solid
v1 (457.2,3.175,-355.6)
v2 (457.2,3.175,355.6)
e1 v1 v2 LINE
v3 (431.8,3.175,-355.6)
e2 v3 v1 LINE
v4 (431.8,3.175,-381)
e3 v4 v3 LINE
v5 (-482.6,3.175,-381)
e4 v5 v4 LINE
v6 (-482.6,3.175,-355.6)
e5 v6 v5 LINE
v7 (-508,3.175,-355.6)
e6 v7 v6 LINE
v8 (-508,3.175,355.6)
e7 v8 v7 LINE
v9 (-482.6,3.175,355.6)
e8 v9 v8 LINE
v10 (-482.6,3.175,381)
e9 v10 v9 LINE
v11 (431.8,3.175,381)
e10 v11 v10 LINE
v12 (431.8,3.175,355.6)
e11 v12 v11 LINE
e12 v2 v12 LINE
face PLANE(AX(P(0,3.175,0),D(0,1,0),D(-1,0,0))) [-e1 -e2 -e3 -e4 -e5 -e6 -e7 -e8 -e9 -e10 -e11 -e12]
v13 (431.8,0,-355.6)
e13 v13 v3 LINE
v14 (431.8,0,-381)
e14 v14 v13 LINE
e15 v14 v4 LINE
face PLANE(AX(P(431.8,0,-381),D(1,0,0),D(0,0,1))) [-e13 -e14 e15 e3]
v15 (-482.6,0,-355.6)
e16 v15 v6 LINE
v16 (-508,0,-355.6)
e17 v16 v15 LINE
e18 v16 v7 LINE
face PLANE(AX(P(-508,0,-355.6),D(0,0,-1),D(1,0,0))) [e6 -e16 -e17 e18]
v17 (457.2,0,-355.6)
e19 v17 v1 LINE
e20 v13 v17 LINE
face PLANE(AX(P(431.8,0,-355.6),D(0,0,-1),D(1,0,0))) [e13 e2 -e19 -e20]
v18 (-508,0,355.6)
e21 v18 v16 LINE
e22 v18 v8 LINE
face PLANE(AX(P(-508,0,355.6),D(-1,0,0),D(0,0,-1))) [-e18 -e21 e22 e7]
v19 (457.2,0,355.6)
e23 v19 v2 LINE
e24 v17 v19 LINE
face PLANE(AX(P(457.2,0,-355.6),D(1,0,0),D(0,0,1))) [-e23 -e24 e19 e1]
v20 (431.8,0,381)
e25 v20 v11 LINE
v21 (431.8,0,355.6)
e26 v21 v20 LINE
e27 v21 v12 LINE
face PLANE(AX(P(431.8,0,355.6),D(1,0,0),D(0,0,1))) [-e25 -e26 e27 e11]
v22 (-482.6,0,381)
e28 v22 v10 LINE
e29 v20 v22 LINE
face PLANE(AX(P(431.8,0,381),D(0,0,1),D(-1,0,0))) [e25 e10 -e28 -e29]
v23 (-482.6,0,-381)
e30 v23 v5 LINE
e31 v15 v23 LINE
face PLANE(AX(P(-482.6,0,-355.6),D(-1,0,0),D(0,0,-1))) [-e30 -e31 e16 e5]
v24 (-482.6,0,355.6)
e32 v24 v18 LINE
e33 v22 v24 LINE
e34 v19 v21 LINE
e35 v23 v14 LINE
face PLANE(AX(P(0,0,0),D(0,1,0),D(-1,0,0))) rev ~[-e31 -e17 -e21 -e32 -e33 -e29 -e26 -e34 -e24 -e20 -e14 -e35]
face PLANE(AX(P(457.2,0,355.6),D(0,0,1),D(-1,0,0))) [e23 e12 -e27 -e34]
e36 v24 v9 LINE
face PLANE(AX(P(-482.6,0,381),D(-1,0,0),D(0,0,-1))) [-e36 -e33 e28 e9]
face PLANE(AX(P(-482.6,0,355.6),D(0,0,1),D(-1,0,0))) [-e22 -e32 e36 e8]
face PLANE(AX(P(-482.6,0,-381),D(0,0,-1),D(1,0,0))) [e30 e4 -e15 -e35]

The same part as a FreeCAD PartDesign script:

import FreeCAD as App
import Part
import Sketcher
Q = App.Units.Quantity

doc = App.newDocument("Part")
body = doc.addObject("PartDesign::Body", "Body")

# Sketch on XZ plane
sketch1 = body.newObject("Sketcher::SketchObject", "Sketch")
sketch1.AttachmentSupport = (doc.getObject("XZ_Plane"), [""])
sketch1.MapMode = "FlatFace"
sketch1.addGeometry([
    Part.LineSegment(App.Vector(-508, -356, 0), App.Vector(-508, 356, 0)),  # 0
    Part.LineSegment(App.Vector(-508, 356, 0), App.Vector(-483, 356, 0)),  # 1
    Part.LineSegment(App.Vector(-483, 356, 0), App.Vector(-483, 381, 0)),  # 2
    Part.LineSegment(App.Vector(-483, 381, 0), App.Vector(432, 381, 0)),  # 3
    Part.LineSegment(App.Vector(432, 381, 0), App.Vector(432, 356, 0)),  # 4
    Part.LineSegment(App.Vector(432, 356, 0), App.Vector(457, 356, 0)),  # 5
    Part.LineSegment(App.Vector(457, 356, 0), App.Vector(457, -356, 0)),  # 6
    Part.LineSegment(App.Vector(457, -356, 0), App.Vector(432, -356, 0)),  # 7
    Part.LineSegment(App.Vector(432, -356, 0), App.Vector(432, -381, 0)),  # 8
    Part.LineSegment(App.Vector(432, -381, 0), App.Vector(-483, -381, 0)),  # 9
    Part.LineSegment(App.Vector(-483, -381, 0), App.Vector(-483, -356, 0)),  # 10
    Part.LineSegment(App.Vector(-483, -356, 0), App.Vector(-508, -356, 0)),  # 11
], False)
sketch1.addConstraint([
    Sketcher.Constraint("Coincident", 0, 2, 1, 1),
    Sketcher.Constraint("Coincident", 1, 2, 2, 1),
    Sketcher.Constraint("Coincident", 2, 2, 3, 1),
    Sketcher.Constraint("Coincident", 3, 2, 4, 1),
    Sketcher.Constraint("Coincident", 4, 2, 5, 1),
    Sketcher.Constraint("Coincident", 5, 2, 6, 1),
    Sketcher.Constraint("Coincident", 6, 2, 7, 1),
    Sketcher.Constraint("Coincident", 7, 2, 8, 1),
    Sketcher.Constraint("Coincident", 8, 2, 9, 1),
    Sketcher.Constraint("Coincident", 9, 2, 10, 1),
    Sketcher.Constraint("Coincident", 10, 2, 11, 1),
    Sketcher.Constraint("Coincident", 11, 2, 0, 1),
    Sketcher.Constraint("Vertical", 0),
    Sketcher.Constraint("Horizontal", 1),
    Sketcher.Constraint("Vertical", 2),
    Sketcher.Constraint("Horizontal", 3),
    Sketcher.Constraint("Vertical", 4),
    Sketcher.Constraint("Horizontal", 5),
    Sketcher.Constraint("Vertical", 6),
    Sketcher.Constraint("Horizontal", 7),
    Sketcher.Constraint("Vertical", 8),
    Sketcher.Constraint("Horizontal", 9),
    Sketcher.Constraint("Vertical", 10),
    Sketcher.Constraint("Horizontal", 11),
    Sketcher.Constraint("Symmetric", 4, 2, 7, 2, -1),
    Sketcher.Constraint("Symmetric", 2, 2, 9, 2, -1),
    Sketcher.Constraint("Horizontal", 1, 2, 4, 2),
    Sketcher.Constraint("Horizontal", 7, 2, 10, 2),
    Sketcher.Constraint("Equal", 1, 5),
    Sketcher.Constraint("Equal", 11, 2),
    Sketcher.Constraint("DistanceX", 1, 1, 1, 2, Q("1 in")),
    Sketcher.Constraint("DistanceX", 3, 1, 3, 2, Q("36 in")),
    Sketcher.Constraint("DistanceY", 0, 1, 0, 2, Q("28 in")),
    Sketcher.Constraint("DistanceX", 0, 2, -1, 1, Q("20 in")),
])
pad1 = body.newObject("PartDesign::Pad", "Pad")
pad1.Profile = sketch1
pad1.Length = Q("0.125 in")
pad1.Reversed = True

doc.recompute()
